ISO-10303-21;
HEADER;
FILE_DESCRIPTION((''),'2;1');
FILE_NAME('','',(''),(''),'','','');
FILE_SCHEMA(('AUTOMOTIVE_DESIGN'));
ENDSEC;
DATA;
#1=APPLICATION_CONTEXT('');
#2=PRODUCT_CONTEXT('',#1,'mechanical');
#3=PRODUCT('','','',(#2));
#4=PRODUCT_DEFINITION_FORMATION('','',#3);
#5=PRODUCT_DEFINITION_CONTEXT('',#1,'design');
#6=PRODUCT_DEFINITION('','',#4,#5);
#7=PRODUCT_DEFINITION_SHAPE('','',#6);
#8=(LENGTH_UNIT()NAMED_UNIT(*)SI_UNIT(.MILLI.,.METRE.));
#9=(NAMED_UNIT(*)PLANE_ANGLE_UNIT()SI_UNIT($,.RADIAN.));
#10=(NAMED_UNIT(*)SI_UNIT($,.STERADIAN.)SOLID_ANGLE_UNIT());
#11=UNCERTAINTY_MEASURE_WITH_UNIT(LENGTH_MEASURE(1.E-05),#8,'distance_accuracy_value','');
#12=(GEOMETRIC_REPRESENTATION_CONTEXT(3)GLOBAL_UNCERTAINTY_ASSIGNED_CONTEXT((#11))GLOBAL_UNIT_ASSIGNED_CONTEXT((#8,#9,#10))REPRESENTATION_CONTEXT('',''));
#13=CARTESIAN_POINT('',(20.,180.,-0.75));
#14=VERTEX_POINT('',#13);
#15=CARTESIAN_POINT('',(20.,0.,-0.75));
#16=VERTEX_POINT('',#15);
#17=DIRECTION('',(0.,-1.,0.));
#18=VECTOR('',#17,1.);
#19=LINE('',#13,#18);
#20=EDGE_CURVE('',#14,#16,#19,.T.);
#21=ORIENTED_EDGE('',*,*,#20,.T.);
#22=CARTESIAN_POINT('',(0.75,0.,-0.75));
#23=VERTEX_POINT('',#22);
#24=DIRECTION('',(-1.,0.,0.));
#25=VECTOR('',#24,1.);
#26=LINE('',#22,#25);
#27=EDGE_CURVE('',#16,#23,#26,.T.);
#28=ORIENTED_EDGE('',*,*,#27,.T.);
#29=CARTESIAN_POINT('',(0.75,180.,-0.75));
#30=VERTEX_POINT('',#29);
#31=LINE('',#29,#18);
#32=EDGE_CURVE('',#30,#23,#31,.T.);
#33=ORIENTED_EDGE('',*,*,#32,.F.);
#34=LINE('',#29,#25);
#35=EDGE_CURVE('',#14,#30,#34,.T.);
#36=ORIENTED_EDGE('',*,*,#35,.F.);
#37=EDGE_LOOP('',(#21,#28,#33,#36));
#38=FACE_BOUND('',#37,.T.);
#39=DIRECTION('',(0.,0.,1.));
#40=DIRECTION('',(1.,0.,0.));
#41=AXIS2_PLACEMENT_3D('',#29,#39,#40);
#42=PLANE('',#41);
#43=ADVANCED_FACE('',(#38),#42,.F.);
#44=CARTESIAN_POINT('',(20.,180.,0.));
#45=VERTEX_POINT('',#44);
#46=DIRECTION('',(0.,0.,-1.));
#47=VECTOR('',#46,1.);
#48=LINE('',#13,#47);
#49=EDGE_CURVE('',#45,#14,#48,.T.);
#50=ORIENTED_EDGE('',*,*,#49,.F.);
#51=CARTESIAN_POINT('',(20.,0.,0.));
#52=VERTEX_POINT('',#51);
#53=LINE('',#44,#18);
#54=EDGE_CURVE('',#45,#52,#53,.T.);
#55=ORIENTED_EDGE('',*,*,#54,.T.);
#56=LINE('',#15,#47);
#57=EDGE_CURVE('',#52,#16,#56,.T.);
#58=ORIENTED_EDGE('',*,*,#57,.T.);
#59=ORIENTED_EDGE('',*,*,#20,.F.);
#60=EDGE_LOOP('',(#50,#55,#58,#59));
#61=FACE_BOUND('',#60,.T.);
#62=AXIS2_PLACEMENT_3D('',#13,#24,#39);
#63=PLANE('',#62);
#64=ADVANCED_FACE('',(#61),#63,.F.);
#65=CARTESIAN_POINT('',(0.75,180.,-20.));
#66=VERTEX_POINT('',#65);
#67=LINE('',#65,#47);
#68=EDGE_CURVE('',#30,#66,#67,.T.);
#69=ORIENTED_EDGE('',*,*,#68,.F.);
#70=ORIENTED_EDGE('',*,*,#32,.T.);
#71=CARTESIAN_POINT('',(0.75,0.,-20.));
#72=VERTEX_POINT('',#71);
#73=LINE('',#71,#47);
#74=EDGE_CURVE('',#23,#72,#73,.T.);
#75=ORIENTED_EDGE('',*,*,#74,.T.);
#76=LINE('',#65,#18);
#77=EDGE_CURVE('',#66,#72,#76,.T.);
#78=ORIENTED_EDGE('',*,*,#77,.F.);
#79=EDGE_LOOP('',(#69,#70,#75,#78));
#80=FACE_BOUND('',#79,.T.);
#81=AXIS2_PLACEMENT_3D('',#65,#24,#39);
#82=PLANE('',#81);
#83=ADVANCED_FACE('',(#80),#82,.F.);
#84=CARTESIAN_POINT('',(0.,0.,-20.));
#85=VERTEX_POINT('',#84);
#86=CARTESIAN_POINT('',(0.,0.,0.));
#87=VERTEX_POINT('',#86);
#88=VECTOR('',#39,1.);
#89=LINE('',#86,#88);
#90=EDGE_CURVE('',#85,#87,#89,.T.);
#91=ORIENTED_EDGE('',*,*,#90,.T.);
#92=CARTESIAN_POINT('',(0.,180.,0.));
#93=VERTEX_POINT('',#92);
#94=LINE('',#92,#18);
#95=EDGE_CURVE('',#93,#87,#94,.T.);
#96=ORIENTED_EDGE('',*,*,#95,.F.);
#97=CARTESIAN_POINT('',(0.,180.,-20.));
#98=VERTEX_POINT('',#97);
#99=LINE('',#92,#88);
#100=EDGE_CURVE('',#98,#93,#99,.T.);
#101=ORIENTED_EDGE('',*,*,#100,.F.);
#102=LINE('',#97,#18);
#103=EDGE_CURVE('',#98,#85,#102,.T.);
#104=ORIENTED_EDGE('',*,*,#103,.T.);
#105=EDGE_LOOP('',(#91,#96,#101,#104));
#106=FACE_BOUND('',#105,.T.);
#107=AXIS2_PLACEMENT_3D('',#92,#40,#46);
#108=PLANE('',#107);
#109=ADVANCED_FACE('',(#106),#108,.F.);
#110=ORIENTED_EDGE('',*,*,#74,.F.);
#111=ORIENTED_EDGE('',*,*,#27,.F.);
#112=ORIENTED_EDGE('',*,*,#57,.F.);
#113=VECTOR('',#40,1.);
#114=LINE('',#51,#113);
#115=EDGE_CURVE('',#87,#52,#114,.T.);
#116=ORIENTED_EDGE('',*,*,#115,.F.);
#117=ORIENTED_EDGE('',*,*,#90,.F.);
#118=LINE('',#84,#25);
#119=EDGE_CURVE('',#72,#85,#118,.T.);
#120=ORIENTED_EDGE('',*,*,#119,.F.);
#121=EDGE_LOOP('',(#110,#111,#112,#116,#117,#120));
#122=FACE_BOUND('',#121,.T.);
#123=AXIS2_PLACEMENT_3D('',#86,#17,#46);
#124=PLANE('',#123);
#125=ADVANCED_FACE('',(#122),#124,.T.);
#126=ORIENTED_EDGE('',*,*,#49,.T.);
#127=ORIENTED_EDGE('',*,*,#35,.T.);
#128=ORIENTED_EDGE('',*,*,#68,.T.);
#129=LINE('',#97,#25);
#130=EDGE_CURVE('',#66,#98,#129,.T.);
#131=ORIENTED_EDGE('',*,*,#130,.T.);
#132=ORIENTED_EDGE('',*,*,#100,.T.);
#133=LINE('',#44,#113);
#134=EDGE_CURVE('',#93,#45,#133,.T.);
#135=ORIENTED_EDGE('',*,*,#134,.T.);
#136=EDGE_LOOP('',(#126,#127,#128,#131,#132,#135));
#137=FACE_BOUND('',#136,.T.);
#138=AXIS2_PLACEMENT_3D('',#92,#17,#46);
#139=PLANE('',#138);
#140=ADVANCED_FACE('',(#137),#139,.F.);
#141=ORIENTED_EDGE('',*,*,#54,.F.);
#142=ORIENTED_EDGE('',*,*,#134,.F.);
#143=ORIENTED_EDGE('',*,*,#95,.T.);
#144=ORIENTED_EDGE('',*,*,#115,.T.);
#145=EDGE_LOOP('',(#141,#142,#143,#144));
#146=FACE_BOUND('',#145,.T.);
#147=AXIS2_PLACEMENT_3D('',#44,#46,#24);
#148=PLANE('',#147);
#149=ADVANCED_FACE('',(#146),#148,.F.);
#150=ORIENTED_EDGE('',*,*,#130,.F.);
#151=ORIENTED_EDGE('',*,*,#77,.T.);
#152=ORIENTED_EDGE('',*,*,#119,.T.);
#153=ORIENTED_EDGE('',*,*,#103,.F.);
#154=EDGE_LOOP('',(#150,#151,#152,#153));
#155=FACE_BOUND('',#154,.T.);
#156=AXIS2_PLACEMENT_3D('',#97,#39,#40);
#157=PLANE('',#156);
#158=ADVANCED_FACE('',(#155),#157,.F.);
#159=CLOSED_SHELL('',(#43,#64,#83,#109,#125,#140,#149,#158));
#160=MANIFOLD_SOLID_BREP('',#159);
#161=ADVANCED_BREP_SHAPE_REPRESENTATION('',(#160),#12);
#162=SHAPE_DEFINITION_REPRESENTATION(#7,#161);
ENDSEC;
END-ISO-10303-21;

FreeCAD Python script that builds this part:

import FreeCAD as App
import Part
import Sketcher

V = App.Vector

doc = App.newDocument("Part")
body = doc.addObject("PartDesign::Body", "Body")

# Sketch on XZ plane
sketch1 = doc.addObject("Sketcher::SketchObject", "Sketch")
body.addObject(sketch1)
sketch1.AttachmentSupport = (doc.XZ_Plane, [""])
sketch1.MapMode = "FlatFace"
sketch1.addGeometry([
    Part.LineSegment(V(0, -20, 0), V(0, 0, 0)),  # 0
    Part.LineSegment(V(0, 0, 0), V(20, 0, 0)),  # 1
    Part.LineSegment(V(20, 0, 0), V(20, -0.75, 0)),  # 2
    Part.LineSegment(V(20, -0.75, 0), V(0.75, -0.75, 0)),  # 3
    Part.LineSegment(V(0.75, -0.75, 0), V(0.75, -20, 0)),  # 4
    Part.LineSegment(V(0.75, -20, 0), V(0, -20, 0)),  # 5
], False)
sketch1.addConstraint([
    Sketcher.Constraint("Coincident", 0, 2, 1, 1),
    Sketcher.Constraint("Coincident", 1, 2, 2, 1),
    Sketcher.Constraint("Coincident", 2, 2, 3, 1),
    Sketcher.Constraint("Coincident", 3, 2, 4, 1),
    Sketcher.Constraint("Coincident", 4, 2, 5, 1),
    Sketcher.Constraint("Coincident", 5, 2, 0, 1),
    Sketcher.Constraint("Vertical", 0),
    Sketcher.Constraint("Horizontal", 1),
    Sketcher.Constraint("Vertical", 2),
    Sketcher.Constraint("Horizontal", 3),
    Sketcher.Constraint("Vertical", 4),
    Sketcher.Constraint("Horizontal", 5),
    Sketcher.Constraint("Coincident", 0, 2, -1, 1),
    Sketcher.Constraint("Equal", 1, 0),
    Sketcher.Constraint("Equal", 5, 2),
    Sketcher.Constraint("DistanceX", 1, 1, 1, 2, 20.0),
    Sketcher.Constraint("DistanceX", 3, 2, 3, 1, 19.25),
])
pad1 = doc.addObject("PartDesign::Pad", "Pad")
body.addObject(pad1)
pad1.Profile = sketch1
pad1.Length = 180
pad1.Reversed = True

doc.recompute()
